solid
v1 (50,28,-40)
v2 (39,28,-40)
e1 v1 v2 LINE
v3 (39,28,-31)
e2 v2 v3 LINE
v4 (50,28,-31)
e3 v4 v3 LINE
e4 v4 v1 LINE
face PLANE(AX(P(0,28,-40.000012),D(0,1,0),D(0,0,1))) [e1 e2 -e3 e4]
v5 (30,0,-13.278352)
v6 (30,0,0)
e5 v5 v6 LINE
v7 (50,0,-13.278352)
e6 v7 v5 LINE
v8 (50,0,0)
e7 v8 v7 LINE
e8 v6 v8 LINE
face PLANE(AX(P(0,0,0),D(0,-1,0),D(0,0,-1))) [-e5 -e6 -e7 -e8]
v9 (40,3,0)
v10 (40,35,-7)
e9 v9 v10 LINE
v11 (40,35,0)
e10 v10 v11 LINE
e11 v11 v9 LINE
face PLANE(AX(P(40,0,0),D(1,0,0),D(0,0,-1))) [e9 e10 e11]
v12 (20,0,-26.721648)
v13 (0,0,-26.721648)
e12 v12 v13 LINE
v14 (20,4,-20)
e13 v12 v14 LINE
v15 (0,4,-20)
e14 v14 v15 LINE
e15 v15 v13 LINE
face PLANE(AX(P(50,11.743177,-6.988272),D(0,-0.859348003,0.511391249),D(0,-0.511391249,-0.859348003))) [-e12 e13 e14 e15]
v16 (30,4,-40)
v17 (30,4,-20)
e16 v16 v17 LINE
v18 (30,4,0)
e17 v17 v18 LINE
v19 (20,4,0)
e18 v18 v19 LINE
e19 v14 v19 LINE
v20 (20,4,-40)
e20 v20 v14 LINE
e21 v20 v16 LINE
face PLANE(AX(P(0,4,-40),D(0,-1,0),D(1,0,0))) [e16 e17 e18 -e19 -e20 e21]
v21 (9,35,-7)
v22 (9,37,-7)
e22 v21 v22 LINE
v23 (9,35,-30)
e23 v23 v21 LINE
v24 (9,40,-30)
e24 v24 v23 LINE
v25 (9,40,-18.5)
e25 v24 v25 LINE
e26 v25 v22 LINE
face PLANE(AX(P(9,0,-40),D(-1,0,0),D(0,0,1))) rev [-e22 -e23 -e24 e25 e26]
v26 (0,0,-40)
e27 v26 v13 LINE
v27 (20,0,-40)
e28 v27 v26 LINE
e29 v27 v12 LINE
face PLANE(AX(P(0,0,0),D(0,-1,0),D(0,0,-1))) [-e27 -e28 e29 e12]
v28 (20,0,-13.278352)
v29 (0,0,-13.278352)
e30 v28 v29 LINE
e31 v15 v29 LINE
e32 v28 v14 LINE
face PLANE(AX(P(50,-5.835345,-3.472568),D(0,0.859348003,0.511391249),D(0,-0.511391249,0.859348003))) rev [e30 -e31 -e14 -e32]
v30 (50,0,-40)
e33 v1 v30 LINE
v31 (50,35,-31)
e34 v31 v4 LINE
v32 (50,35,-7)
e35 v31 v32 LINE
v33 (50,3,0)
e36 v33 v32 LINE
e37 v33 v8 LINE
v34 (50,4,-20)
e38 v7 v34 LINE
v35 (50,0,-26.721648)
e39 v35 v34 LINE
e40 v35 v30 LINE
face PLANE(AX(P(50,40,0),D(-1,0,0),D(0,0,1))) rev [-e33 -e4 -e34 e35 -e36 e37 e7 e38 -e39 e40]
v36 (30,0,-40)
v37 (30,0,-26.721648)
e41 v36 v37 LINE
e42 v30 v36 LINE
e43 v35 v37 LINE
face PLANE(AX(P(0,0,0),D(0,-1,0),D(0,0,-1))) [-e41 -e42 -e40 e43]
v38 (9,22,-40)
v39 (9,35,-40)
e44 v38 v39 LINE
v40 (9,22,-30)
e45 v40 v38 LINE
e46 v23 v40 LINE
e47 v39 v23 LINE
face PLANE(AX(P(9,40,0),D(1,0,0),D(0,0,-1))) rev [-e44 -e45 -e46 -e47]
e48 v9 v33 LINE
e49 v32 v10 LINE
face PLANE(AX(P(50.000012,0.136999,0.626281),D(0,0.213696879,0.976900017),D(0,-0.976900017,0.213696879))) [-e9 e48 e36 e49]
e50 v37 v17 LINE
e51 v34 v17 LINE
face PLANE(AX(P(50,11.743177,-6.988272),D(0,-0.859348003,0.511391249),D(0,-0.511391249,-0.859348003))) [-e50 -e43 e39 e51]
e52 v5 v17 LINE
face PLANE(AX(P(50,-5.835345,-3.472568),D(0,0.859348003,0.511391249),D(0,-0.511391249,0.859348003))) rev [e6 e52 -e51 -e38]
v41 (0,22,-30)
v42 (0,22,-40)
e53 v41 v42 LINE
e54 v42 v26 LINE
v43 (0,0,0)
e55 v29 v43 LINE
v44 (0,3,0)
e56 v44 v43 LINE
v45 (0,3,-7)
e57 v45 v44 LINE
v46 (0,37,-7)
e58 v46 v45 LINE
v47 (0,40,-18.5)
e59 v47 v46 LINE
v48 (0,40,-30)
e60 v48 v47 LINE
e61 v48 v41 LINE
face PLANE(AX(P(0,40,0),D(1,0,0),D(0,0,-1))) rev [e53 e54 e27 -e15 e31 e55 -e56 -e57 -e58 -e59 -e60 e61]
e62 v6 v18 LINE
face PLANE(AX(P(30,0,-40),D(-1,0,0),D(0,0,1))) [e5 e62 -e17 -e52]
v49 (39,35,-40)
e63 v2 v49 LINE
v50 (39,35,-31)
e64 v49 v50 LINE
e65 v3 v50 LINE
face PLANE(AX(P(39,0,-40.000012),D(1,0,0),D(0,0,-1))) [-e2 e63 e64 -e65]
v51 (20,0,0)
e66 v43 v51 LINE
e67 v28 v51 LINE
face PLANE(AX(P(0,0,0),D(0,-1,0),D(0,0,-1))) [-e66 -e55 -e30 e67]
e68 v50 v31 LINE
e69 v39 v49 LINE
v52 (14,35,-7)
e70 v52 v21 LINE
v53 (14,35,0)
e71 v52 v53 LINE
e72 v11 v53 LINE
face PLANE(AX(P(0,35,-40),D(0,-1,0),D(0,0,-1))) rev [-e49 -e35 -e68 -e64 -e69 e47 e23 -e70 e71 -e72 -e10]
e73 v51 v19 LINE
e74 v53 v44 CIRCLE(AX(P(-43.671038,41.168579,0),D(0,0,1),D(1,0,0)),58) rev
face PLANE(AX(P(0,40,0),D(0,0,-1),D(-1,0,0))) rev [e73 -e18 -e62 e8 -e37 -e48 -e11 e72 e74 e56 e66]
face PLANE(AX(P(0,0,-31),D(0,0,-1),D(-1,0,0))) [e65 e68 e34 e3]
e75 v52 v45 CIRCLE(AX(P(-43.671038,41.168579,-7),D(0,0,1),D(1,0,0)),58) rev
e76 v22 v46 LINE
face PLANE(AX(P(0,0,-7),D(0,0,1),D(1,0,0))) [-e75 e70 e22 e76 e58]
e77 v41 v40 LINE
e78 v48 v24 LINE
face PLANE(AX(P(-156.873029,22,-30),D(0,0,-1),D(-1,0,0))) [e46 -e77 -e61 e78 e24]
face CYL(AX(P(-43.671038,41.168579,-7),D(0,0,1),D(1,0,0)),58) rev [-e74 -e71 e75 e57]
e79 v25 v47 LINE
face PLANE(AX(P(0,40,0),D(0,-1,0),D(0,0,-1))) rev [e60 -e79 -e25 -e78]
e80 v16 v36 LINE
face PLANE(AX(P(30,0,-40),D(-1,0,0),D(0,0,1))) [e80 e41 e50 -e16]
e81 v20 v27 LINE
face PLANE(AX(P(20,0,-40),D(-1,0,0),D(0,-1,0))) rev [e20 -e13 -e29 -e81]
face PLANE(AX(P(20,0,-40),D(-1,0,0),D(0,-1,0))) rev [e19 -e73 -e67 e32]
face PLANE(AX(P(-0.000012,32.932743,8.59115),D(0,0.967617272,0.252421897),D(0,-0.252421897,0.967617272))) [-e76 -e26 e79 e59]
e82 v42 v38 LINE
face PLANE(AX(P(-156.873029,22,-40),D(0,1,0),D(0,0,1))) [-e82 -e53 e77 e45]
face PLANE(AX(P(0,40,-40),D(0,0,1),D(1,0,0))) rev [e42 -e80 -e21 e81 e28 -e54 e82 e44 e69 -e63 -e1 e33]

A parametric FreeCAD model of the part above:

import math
import FreeCAD as App
import Part
import Sketcher
from FreeCAD import Vector


def add_polygon(sketch, points):
    """Adds a closed chain of lines whose ends are joined by coincident constraints."""
    first, n = sketch.GeometryCount, len(points)
    for a, b in zip(points, points[1:] + points[:1]):
        sketch.addGeometry(Part.LineSegment(App.Vector(*a, 0), App.Vector(*b, 0)), False)
    for i in range(n):
        sketch.addConstraint(Sketcher.Constraint("Coincident", first + i, 2, first + (i + 1) % n, 1))

doc = App.newDocument("Part")
params = doc.addObject("Spreadsheet::Sheet", "Params")
for row, (alias, value) in enumerate([
    ("sketch1_width", "50 mm"),
    ("sketch1_height", "40 mm"),
    ("pad1_length", "40 mm"),
    ("sketch2_width", "10 mm"),
    ("sketch2_height", "4 mm"),
    ("sketch4_width", "41 mm"),
    ("sketch4_height", "5 mm"),
    ("sketch5_radius", "58 mm"),
    ("sketch5_width", "5 mm"),
    ("sketch5_width2", "9 mm"),
    ("sketch5_height", "37 mm"),
    ("pocket4_length", "76.498344 mm"),
    ("pocket4_length2", "7 mm"),
    ("sketch6_width", "32 mm"),
    ("sketch6_height", "7 mm"),
    ("pocket5_length", "76.498344 mm"),
    ("pocket5_length2", "10 mm"),
    ("sketch7_width", "128 mm"),
    ("sketch7_height", "120 mm"),
    ("sketch7_length", "220 mm"),
    ("pocket6_length", "76.498344 mm"),
    ("pocket6_length2", "9 mm"),
    ("sketch8_width", "3 mm"),
    ("sketch8_height", "11.5 mm"),
    ("sketch9_width", "11 mm"),
    ("sketch9_height", "7 mm"),
    ("pocket8_length", "76.498344 mm"),
    ("pocket8_length2", "9 mm"),
], start=1):
    params.set(f"A{row}", alias)
    params.set(f"B{row}", "=" + value)
    params.setAlias(f"B{row}", alias)

body = doc.addObject("PartDesign::Body", "Body")

sketch1 = body.newObject("Sketcher::SketchObject", "Sketch")
sketch1.AttachmentSupport = (doc.getObject("XZ_Plane"), [""])
sketch1.MapMode = "FlatFace"
add_polygon(sketch1, [(0, -40), (0, 0), (50, 0), (50, -40)])
sketch1.addConstraint(Sketcher.Constraint("Vertical", 0))
sketch1.addConstraint(Sketcher.Constraint("Horizontal", 1))
sketch1.addConstraint(Sketcher.Constraint("Vertical", 2))
sketch1.addConstraint(Sketcher.Constraint("Horizontal", 3))
sketch1.addConstraint(Sketcher.Constraint("Coincident", 0, 2, -1, 1))
sketch1.addConstraint(Sketcher.Constraint("DistanceX", 1, 1, 1, 2, 50.0))
sketch1.addConstraint(Sketcher.Constraint("DistanceY", 0, 1, 0, 2, 40.0))
sketch1.setExpression("Constraints[9]", "Params.sketch1_width")
sketch1.setExpression("Constraints[10]", "Params.sketch1_height")
pad1 = body.newObject("PartDesign::Pad", "Pad")
pad1.Profile = sketch1
pad1.setExpression("Length", "Params.pad1_length")
pad1.Reversed = True

sketch2 = body.newObject("Sketcher::SketchObject", "Sketch001")
sketch2.AttachmentSupport = (doc.getObject("XY_Plane"), [""])
sketch2.MapMode = "FlatFace"
add_polygon(sketch2, [(20, 4), (20, 0), (30, 0), (30, 4)])
sketch2.addConstraint(Sketcher.Constraint("Vertical", 0))
sketch2.addConstraint(Sketcher.Constraint("Horizontal", 1))
sketch2.addConstraint(Sketcher.Constraint("Vertical", 2))
sketch2.addConstraint(Sketcher.Constraint("Horizontal", 3))
sketch2.addConstraint(Sketcher.Constraint("PointOnObject", 0, 2, -1))
sketch2.addConstraint(Sketcher.Constraint("DistanceX", 1, 1, 1, 2, 10.0))
sketch2.addConstraint(Sketcher.Constraint("DistanceY", 0, 2, 0, 1, 4.0))
sketch2.addConstraint(Sketcher.Constraint("DistanceX", -1, 1, 0, 2, 20.0))
sketch2.setExpression("Constraints[9]", "Params.sketch2_width")
sketch2.setExpression("Constraints[10]", "Params.sketch2_height")
pocket1 = body.newObject("PartDesign::Pocket", "Pocket")
pocket1.Profile = sketch2
pocket1.Type = "ThroughAll"
pocket1.Midplane = True

sketch3 = body.newObject("Sketcher::SketchObject", "Sketch002")
sketch3.AttachmentSupport = (doc.getObject("YZ_Plane"), [""])
sketch3.MapMode = "FlatFace"
add_polygon(sketch3, [(4, -20), (0, -26.721648), (0, -13.278352)])
sketch3.addConstraint(Sketcher.Constraint("Vertical", 1))
sketch3.addConstraint(Sketcher.Constraint("PointOnObject", 0, 2, -2))
sketch3.addConstraint(Sketcher.Constraint("Equal", 0, 2))
sketch3.addConstraint(Sketcher.Constraint("DistanceX", -1, 1, 2, 2, 4.0))
sketch3.addConstraint(Sketcher.Constraint("DistanceY", 2, 2, -1, 1, 20.0))
sketch3.addConstraint(Sketcher.Constraint("Distance", 0, 7.8218))
pocket2 = body.newObject("PartDesign::Pocket", "Pocket001")
pocket2.Profile = sketch3
pocket2.Type = "ThroughAll"
pocket2.Midplane = True

sketch4 = body.newObject("Sketcher::SketchObject", "Sketch003")
sketch4.AttachmentSupport = (doc.getObject("XY_Plane"), [""])
sketch4.MapMode = "FlatFace"
add_polygon(sketch4, [(9, 40), (9, 35), (50, 35), (50, 40)])
sketch4.addConstraint(Sketcher.Constraint("Vertical", 0))
sketch4.addConstraint(Sketcher.Constraint("Horizontal", 1))
sketch4.addConstraint(Sketcher.Constraint("Vertical", 2))
sketch4.addConstraint(Sketcher.Constraint("Horizontal", 3))
sketch4.addConstraint(Sketcher.Constraint("DistanceX", 1, 1, 1, 2, 41.0))
sketch4.addConstraint(Sketcher.Constraint("DistanceY", 0, 2, 0, 1, 5.0))
sketch4.addConstraint(Sketcher.Constraint("DistanceX", -1, 1, 0, 2, 9.0))
sketch4.addConstraint(Sketcher.Constraint("DistanceY", -1, 1, 0, 2, 35.0))
sketch4.setExpression("Constraints[8]", "Params.sketch4_width")
sketch4.setExpression("Constraints[9]", "Params.sketch4_height")
pocket3 = body.newObject("PartDesign::Pocket", "Pocket002")
pocket3.Profile = sketch4
pocket3.Type = "ThroughAll"
pocket3.Midplane = True

sketch5 = body.newObject("Sketcher::SketchObject", "Sketch004")
sketch5.AttachmentSupport = (doc.getObject("XY_Plane"), [""])
sketch5.MapMode = "FlatFace"
sketch5.addGeometry(Part.ArcOfCircle(Part.Circle(Vector(-43.671038, 41.168579, 0), Vector(0, 0, 1), 58), math.radians(-41.153527), math.radians(-6.105229)), False)
sketch5.addGeometry(Part.LineSegment(Vector(14, 35, 0), Vector(9, 35, 0)), False)
sketch5.addGeometry(Part.LineSegment(Vector(9, 35, 0), Vector(9, 40, 0)), False)
sketch5.addGeometry(Part.LineSegment(Vector(9, 40, 0), Vector(0, 40, 0)), False)
sketch5.addGeometry(Part.LineSegment(Vector(0, 40, 0), Vector(0, 3, 0)), False)
sketch5.addConstraint(Sketcher.Constraint("Coincident", 0, 2, 1, 1))
sketch5.addConstraint(Sketcher.Constraint("Coincident", 1, 2, 2, 1))
sketch5.addConstraint(Sketcher.Constraint("Coincident", 2, 2, 3, 1))
sketch5.addConstraint(Sketcher.Constraint("Coincident", 3, 2, 4, 1))
sketch5.addConstraint(Sketcher.Constraint("Coincident", 4, 2, 0, 1))
sketch5.addConstraint(Sketcher.Constraint("Horizontal", 1))
sketch5.addConstraint(Sketcher.Constraint("Vertical", 2))
sketch5.addConstraint(Sketcher.Constraint("Horizontal", 3))
sketch5.addConstraint(Sketcher.Constraint("Vertical", 4))
sketch5.addConstraint(Sketcher.Constraint("PointOnObject", 3, 2, -2))
sketch5.addConstraint(Sketcher.Constraint("Equal", 1, 2))
sketch5.addConstraint(Sketcher.Constraint("Radius", 0, 58.0))
sketch5.addConstraint(Sketcher.Constraint("DistanceX", 1, 2, 1, 1, 5.0))
sketch5.addConstraint(Sketcher.Constraint("DistanceX", 3, 2, 3, 1, 9.0))
sketch5.addConstraint(Sketcher.Constraint("DistanceY", 4, 2, 4, 1, 37.0))
sketch5.addConstraint(Sketcher.Constraint("DistanceY", -1, 1, 0, 2, 35.0))
sketch5.setExpression("Constraints[11]", "Params.sketch5_radius")
sketch5.setExpression("Constraints[12]", "Params.sketch5_width")
sketch5.setExpression("Constraints[13]", "Params.sketch5_width2")
sketch5.setExpression("Constraints[14]", "Params.sketch5_height")
pocket4 = body.newObject("PartDesign::Pocket", "Pocket003")
pocket4.Profile = sketch5
pocket4.Type = "TwoLengths"
pocket4.setExpression("Length", "Params.pocket4_length")
pocket4.setExpression("Length2", "Params.pocket4_length2")
pocket4.Reversed = True

sketch6 = body.newObject("Sketcher::SketchObject", "Sketch005")
sketch6.AttachmentSupport = (doc.getObject("YZ_Plane"), [""])
sketch6.MapMode = "FlatFace"
sketch6.AttachmentOffset = App.Placement(Vector(0, 0, 50), App.Rotation())
add_polygon(sketch6, [(35, 0), (3, 0), (35, -7)])
sketch6.addConstraint(Sketcher.Constraint("Horizontal", 0))
sketch6.addConstraint(Sketcher.Constraint("Vertical", 2))
sketch6.addConstraint(Sketcher.Constraint("PointOnObject", 0, 2, -1))
sketch6.addConstraint(Sketcher.Constraint("DistanceX", 0, 2, 0, 1, 32.0))
sketch6.addConstraint(Sketcher.Constraint("DistanceY", 2, 1, 2, 2, 7.0))
sketch6.addConstraint(Sketcher.Constraint("DistanceX", -1, 1, 0, 2, 3.0))
sketch6.setExpression("Constraints[6]", "Params.sketch6_width")
sketch6.setExpression("Constraints[7]", "Params.sketch6_height")
pocket5 = body.newObject("PartDesign::Pocket", "Pocket004")
pocket5.Profile = sketch6
pocket5.Type = "TwoLengths"
pocket5.setExpression("Length", "Params.pocket5_length")
pocket5.setExpression("Length2", "Params.pocket5_length2")
pocket5.Reversed = True

sketch7 = body.newObject("Sketcher::SketchObject", "Sketch006")
sketch7.AttachmentSupport = (doc.getObject("YZ_Plane"), [""])
sketch7.MapMode = "FlatFace"
add_polygon(sketch7, [(22, -150), (22, -30), (150, -30), (300.467048, -190.498185), (172.467048, -310.498185)])
sketch7.addConstraint(Sketcher.Constraint("Vertical", 0))
sketch7.addConstraint(Sketcher.Constraint("Horizontal", 1))
sketch7.addConstraint(Sketcher.Constraint("Perpendicular", 2, 3))
sketch7.addConstraint(Sketcher.Constraint("Perpendicular", 3, 4))
sketch7.addConstraint(Sketcher.Constraint("Equal", 2, 4))
sketch7.addConstraint(Sketcher.Constraint("DistanceX", 1, 1, 1, 2, 128.0))
sketch7.addConstraint(Sketcher.Constraint("DistanceY", 0, 1, 0, 2, 120.0))
sketch7.addConstraint(Sketcher.Constraint("Distance", 2, 220.0))
sketch7.addConstraint(Sketcher.Constraint("DistanceX", -1, 1, 0, 2, 22.0))
sketch7.addConstraint(Sketcher.Constraint("DistanceY", 0, 2, -1, 1, 30.0))
sketch7.setExpression("Constraints[10]", "Params.sketch7_width")
sketch7.setExpression("Constraints[11]", "Params.sketch7_height")
sketch7.setExpression("Constraints[12]", "Params.sketch7_length")
pocket6 = body.newObject("PartDesign::Pocket", "Pocket005")
pocket6.Profile = sketch7
pocket6.Type = "TwoLengths"
pocket6.setExpression("Length", "Params.pocket6_length")
pocket6.setExpression("Length2", "Params.pocket6_length2")

sketch8 = body.newObject("Sketcher::SketchObject", "Sketch007")
sketch8.AttachmentSupport = (doc.getObject("YZ_Plane"), [""])
sketch8.MapMode = "FlatFace"
add_polygon(sketch8, [(40, -7), (40, -18.5), (37, -7)])
sketch8.addConstraint(Sketcher.Constraint("Vertical", 0))
sketch8.addConstraint(Sketcher.Constraint("Horizontal", 2))
sketch8.addConstraint(Sketcher.Constraint("DistanceX", 2, 1, 2, 2, 3.0))
sketch8.addConstraint(Sketcher.Constraint("DistanceY", 0, 2, 0, 1, 11.5))
sketch8.addConstraint(Sketcher.Constraint("DistanceX", -1, 1, 0, 2, 40.0))
sketch8.addConstraint(Sketcher.Constraint("DistanceY", 1, 2, -1, 1, 7.0))
sketch8.setExpression("Constraints[5]", "Params.sketch8_width")
sketch8.setExpression("Constraints[6]", "Params.sketch8_height")
pocket7 = body.newObject("PartDesign::Pocket", "Pocket006")
pocket7.Profile = sketch8
pocket7.Type = "ThroughAll"
pocket7.Midplane = True

sketch9 = body.newObject("Sketcher::SketchObject", "Sketch008")
sketch9.AttachmentSupport = (doc.getObject("XY_Plane"), [""])
sketch9.MapMode = "FlatFace"
sketch9.AttachmentOffset = App.Placement(Vector(0, 0, -40), App.Rotation())
add_polygon(sketch9, [(50, 35), (50, 28), (39, 28), (39, 35)])
sketch9.addConstraint(Sketcher.Constraint("Vertical", 0))
sketch9.addConstraint(Sketcher.Constraint("Horizontal", 1))
sketch9.addConstraint(Sketcher.Constraint("Vertical", 2))
sketch9.addConstraint(Sketcher.Constraint("Horizontal", 3))
sketch9.addConstraint(Sketcher.Constraint("DistanceX", 1, 2, 1, 1, 11.0))
sketch9.addConstraint(Sketcher.Constraint("DistanceY", 0, 2, 0, 1, 7.0))
sketch9.addConstraint(Sketcher.Constraint("DistanceX", -1, 1, 0, 2, 50.0))
sketch9.addConstraint(Sketcher.Constraint("DistanceY", -1, 1, 0, 2, 28.0))
sketch9.setExpression("Constraints[8]", "Params.sketch9_width")
sketch9.setExpression("Constraints[9]", "Params.sketch9_height")
pocket8 = body.newObject("PartDesign::Pocket", "Pocket007")
pocket8.Profile = sketch9
pocket8.Type = "TwoLengths"
pocket8.setExpression("Length", "Params.pocket8_length")
pocket8.setExpression("Length2", "Params.pocket8_length2")

doc.recompute()
